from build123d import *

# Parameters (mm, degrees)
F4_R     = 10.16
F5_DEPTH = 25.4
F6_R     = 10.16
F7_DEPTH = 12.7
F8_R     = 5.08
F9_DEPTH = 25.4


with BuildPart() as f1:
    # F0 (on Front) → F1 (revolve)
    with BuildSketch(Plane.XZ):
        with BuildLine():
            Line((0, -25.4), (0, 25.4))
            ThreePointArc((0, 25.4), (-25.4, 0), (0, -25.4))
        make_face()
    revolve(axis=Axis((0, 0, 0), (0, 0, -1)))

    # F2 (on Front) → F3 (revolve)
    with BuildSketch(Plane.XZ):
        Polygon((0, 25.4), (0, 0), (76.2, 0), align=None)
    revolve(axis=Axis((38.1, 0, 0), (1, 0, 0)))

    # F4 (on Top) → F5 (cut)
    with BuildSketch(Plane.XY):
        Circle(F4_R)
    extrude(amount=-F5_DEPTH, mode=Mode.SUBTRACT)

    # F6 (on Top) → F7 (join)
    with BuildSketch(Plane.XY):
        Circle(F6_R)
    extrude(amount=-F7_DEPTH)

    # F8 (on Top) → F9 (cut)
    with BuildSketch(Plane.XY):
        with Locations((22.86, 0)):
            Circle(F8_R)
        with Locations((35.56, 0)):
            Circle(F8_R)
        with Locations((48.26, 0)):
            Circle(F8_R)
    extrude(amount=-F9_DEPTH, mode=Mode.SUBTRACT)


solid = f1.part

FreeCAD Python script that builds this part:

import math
import FreeCAD as App
import Part
import Sketcher
Q = App.Units.Quantity

doc = App.newDocument("Part")
body = doc.addObject("PartDesign::Body", "Body")

# Sketch on XZ plane
sketch1 = body.newObject("Sketcher::SketchObject", "Sketch")
sketch1.AttachmentSupport = (doc.getObject("XZ_Plane"), [""])
sketch1.MapMode = "FlatFace"
sketch1.addGeometry([
    Part.LineSegment(App.Vector(0, -25, 0), App.Vector(0, 25, 0)),
    Part.ArcOfCircle(Part.Circle(App.Vector(0, 0, 0), App.Vector(0, 0, 1), 25), math.radians(90), math.radians(270)),
], False)
sketch1.addConstraint([
    Sketcher.Constraint("Coincident", 0, 1, 1, 2),
    Sketcher.Constraint("Coincident", 1, 1, 0, 2),
    Sketcher.Constraint("Vertical", 0),
    Sketcher.Constraint("Coincident", 1, 3, -1, 1),
    Sketcher.Constraint("PointOnObject", 0, 1, -2),
    Sketcher.Constraint("Radius", 1, Q("1 in")),
])
revolution = body.newObject("PartDesign::Revolution", "Revolution")
revolution.Profile = sketch1
revolution.ReferenceAxis = (sketch1, ["V_Axis"])
revolution.Angle = 360

# Sketch on XZ plane
sketch2 = body.newObject("Sketcher::SketchObject", "Sketch001")
sketch2.AttachmentSupport = (doc.getObject("XZ_Plane"), [""])
sketch2.MapMode = "FlatFace"
sketch2.addGeometry([
    Part.LineSegment(App.Vector(0, 25, 0), App.Vector(0, 0, 0)),
    Part.LineSegment(App.Vector(0, 0, 0), App.Vector(76, 0, 0)),
    Part.LineSegment(App.Vector(76, 0, 0), App.Vector(0, 25, 0)),
], False)
sketch2.addConstraint([
    Sketcher.Constraint("Coincident", 0, 2, 1, 1),
    Sketcher.Constraint("Coincident", 1, 2, 2, 1),
    Sketcher.Constraint("Coincident", 2, 2, 0, 1),
    Sketcher.Constraint("Vertical", 0),
    Sketcher.Constraint("Horizontal", 1),
    Sketcher.Constraint("Coincident", 0, 2, -1, 1),
    Sketcher.Constraint("DistanceX", 1, 1, 1, 2, Q("3 in")),
    Sketcher.Constraint("DistanceY", 0, 2, 0, 1, Q("1 in")),
])
revolution2 = body.newObject("PartDesign::Revolution", "Revolution001")
revolution2.Profile = sketch2
revolution2.ReferenceAxis = (sketch2, ["H_Axis"])
revolution2.Angle = 360

# Sketch on XY plane
sketch3 = body.newObject("Sketcher::SketchObject", "Sketch002")
sketch3.AttachmentSupport = (doc.getObject("XY_Plane"), [""])
sketch3.MapMode = "FlatFace"
sketch3.addGeometry(Part.Circle(App.Vector(0, 0, 0), App.Vector(0, 0, 1), 10), False)
sketch3.addConstraint([
    Sketcher.Constraint("Coincident", 0, 3, -1, 1),
    Sketcher.Constraint("Diameter", 0, Q("0.8 in")),
])
pocket1 = body.newObject("PartDesign::Pocket", "Pocket")
pocket1.Profile = sketch3
pocket1.Length = Q("1 in")

# Sketch on XY plane
sketch4 = body.newObject("Sketcher::SketchObject", "Sketch003")
sketch4.AttachmentSupport = (doc.getObject("XY_Plane"), [""])
sketch4.MapMode = "FlatFace"
sketch4.addGeometry(Part.Circle(App.Vector(0, 0, 0), App.Vector(0, 0, 1), 10), False)
sketch4.addConstraint([
    Sketcher.Constraint("Coincident", 0, 3, -1, 1),
    Sketcher.Constraint("Diameter", 0, Q("0.8 in")),
])
pad1 = body.newObject("PartDesign::Pad", "Pad")
pad1.Profile = sketch4
pad1.Length = Q("0.5 in")
pad1.Reversed = True

# Sketch on XY plane
sketch5 = body.newObject("Sketcher::SketchObject", "Sketch004")
sketch5.AttachmentSupport = (doc.getObject("XY_Plane"), [""])
sketch5.MapMode = "FlatFace"
sketch5.addGeometry([
    Part.Circle(App.Vector(23, 0, 0), App.Vector(0, 0, 1), 5),
    Part.Circle(App.Vector(36, 0, 0), App.Vector(0, 0, 1), 5),
    Part.Circle(App.Vector(48, 0, 0), App.Vector(0, 0, 1), 5),
], False)
sketch5.addConstraint([
    Sketcher.Constraint("Equal", 0, 1),
    Sketcher.Constraint("Equal", 1, 2),
    Sketcher.Constraint("PointOnObject", 0, 3, -1),
    Sketcher.Constraint("PointOnObject", 1, 3, -1),
    Sketcher.Constraint("PointOnObject", 2, 3, -1),
    Sketcher.Constraint("Diameter", 0, Q("0.4 in")),
    Sketcher.Constraint("DistanceX", 0, 3, 2, 3, Q("1 in")),
    Sketcher.Constraint("DistanceX", -1, 1, 0, 3, Q("0.9 in")),
    Sketcher.Constraint("DistanceX", -1, 1, 1, 3, Q("1.4 in")),
])
pocket2 = body.newObject("PartDesign::Pocket", "Pocket001")
pocket2.Profile = sketch5
pocket2.Length = Q("1 in")

doc.recompute()
